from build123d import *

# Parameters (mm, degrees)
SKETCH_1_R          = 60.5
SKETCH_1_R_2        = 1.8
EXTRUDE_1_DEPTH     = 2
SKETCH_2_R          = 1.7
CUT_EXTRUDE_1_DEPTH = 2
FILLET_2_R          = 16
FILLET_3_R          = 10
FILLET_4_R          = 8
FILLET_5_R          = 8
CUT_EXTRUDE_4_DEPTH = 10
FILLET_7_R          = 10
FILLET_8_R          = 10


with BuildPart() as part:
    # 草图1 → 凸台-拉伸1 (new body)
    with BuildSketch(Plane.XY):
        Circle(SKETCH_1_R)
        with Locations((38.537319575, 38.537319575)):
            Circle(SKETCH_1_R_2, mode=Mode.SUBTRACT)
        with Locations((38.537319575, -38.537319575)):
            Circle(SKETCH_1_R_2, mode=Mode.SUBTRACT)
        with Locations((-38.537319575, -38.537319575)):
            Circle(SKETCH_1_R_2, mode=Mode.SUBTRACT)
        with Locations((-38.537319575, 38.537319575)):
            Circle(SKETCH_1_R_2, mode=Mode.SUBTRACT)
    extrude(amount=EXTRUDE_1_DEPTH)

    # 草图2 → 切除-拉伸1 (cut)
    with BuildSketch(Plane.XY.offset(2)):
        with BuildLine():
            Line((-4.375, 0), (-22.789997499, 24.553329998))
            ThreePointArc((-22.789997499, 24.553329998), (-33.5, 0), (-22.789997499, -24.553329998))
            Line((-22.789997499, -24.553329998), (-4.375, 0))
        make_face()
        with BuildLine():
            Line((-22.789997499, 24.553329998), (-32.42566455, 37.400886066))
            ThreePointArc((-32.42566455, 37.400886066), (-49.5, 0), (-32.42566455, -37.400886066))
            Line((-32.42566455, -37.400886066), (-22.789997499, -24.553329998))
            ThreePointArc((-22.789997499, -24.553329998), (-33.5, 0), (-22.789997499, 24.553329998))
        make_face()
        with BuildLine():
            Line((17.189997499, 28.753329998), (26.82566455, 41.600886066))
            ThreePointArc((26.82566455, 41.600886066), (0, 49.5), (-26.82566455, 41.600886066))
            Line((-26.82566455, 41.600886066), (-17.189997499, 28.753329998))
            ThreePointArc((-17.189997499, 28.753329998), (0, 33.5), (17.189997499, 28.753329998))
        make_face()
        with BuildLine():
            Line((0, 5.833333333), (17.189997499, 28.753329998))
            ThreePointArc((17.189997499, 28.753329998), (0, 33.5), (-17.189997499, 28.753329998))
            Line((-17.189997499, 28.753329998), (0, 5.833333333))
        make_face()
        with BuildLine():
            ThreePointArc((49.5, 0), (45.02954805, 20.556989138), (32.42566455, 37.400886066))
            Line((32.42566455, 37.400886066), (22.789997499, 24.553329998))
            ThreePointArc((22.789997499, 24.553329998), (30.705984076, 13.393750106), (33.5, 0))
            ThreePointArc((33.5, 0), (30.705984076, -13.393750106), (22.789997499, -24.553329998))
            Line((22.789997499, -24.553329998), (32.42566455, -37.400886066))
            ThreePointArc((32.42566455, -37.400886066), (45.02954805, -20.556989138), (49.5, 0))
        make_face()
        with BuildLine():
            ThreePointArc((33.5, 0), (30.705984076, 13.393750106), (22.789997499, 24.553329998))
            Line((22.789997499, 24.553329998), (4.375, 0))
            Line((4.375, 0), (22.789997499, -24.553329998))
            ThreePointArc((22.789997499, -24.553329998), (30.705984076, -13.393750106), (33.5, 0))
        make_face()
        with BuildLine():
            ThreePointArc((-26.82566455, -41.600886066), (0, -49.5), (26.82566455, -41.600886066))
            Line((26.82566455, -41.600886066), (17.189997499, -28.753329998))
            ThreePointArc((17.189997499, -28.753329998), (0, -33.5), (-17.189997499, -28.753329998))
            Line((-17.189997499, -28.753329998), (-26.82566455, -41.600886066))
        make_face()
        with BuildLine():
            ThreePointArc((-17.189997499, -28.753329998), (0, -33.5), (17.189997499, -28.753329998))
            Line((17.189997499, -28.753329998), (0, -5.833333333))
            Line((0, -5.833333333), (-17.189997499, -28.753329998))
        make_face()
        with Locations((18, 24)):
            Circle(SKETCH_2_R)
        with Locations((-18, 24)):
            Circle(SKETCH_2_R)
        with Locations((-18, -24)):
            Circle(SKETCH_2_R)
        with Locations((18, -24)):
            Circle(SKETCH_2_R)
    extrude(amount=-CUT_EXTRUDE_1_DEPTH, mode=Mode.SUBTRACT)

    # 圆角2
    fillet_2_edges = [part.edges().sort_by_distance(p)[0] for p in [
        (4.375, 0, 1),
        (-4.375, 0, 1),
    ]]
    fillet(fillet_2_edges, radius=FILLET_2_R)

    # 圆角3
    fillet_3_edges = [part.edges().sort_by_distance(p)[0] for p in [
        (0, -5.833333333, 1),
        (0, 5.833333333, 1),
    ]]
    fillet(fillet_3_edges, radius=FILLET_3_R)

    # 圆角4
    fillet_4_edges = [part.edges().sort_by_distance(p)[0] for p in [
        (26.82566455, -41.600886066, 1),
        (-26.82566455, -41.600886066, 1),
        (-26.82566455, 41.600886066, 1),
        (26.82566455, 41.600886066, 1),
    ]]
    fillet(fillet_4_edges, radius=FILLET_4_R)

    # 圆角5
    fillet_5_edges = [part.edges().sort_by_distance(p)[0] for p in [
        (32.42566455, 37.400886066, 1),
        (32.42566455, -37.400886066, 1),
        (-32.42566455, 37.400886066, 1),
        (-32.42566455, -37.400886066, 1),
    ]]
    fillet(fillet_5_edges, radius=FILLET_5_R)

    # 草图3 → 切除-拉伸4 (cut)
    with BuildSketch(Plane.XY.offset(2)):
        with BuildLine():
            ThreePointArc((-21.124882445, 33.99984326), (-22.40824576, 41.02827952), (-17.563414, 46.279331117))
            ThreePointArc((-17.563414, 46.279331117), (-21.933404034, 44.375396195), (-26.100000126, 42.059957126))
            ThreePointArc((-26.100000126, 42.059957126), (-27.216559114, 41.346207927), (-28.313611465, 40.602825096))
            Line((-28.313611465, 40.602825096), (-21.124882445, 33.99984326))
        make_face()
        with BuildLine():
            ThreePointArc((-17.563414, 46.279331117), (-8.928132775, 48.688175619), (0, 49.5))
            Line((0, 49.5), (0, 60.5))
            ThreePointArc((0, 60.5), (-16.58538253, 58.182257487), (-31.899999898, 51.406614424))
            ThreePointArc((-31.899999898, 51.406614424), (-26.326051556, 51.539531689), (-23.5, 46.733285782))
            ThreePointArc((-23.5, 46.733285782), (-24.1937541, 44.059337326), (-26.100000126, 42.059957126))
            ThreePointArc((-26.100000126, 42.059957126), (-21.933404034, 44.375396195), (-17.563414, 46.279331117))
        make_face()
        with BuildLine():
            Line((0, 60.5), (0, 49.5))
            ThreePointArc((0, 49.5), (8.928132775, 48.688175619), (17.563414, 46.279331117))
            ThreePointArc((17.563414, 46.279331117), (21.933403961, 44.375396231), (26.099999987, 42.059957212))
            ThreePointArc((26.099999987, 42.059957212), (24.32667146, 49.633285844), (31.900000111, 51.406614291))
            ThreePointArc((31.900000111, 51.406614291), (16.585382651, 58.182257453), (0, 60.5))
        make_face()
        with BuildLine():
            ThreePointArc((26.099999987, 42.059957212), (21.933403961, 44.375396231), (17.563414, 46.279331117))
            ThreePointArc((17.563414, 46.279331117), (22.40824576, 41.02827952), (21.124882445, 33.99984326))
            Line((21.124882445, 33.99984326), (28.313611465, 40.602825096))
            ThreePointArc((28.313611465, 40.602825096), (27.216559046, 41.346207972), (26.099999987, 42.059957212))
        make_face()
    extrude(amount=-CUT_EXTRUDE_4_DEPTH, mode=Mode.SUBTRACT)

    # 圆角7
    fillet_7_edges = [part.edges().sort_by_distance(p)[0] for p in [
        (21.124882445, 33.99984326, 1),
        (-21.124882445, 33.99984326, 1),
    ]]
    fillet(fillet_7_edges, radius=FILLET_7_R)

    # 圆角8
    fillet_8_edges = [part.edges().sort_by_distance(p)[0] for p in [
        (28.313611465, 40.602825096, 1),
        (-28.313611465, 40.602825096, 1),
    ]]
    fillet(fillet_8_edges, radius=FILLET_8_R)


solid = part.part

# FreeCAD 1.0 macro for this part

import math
import FreeCAD as App
import Part
import Sketcher
from FreeCAD import Vector
Q = App.Units.Quantity


def edges_at(feature, points):
    """Names of the edges that pass closest to the given points."""
    edges = feature.Shape.Edges
    near = lambda p: min(range(len(edges)), key=lambda i: edges[i].distToShape(Part.Vertex(*p))[0])
    return sorted({f"Edge{near(p) + 1}" for p in points})

doc = App.newDocument("Part")
body = doc.addObject("PartDesign::Body", "Body")

# Sketch on XY plane
sketch1 = doc.addObject("Sketcher::SketchObject", "Sketch")
body.addObject(sketch1)
sketch1.AttachmentSupport = (doc.XY_Plane, [""])
sketch1.MapMode = "FlatFace"
sketch1.addGeometry(Part.Circle(Vector(0, 0, 0), Vector(0, 0, 1), 60.5), False)
sketch1.addGeometry(Part.Circle(Vector(-38.5, -38.5, 0), Vector(0, 0, 1), 1.8), False)
sketch1.addGeometry(Part.Circle(Vector(38.5, -38.5, 0), Vector(0, 0, 1), 1.8), False)
sketch1.addGeometry(Part.Circle(Vector(-38.5, 38.5, 0), Vector(0, 0, 1), 1.8), False)
sketch1.addGeometry(Part.Circle(Vector(38.5, 38.5, 0), Vector(0, 0, 1), 1.8), False)
sketch1.addConstraint(Sketcher.Constraint("Coincident", 0, 3, -1, 1))
sketch1.addConstraint(Sketcher.Constraint("Equal", 1, 2))
sketch1.addConstraint(Sketcher.Constraint("Equal", 2, 3))
sketch1.addConstraint(Sketcher.Constraint("Equal", 3, 4))
sketch1.addConstraint(Sketcher.Constraint("Symmetric", 2, 3, 3, 3, -1, 1))
sketch1.addConstraint(Sketcher.Constraint("Symmetric", 1, 3, 4, 3, -1, 1))
sketch1.addConstraint(Sketcher.Constraint("Symmetric", 1, 3, 2, 3, -2))
sketch1.addConstraint(Sketcher.Constraint("Diameter", 0, Q("121 mm")))
sketch1.addConstraint(Sketcher.Constraint("Diameter", 1, Q("3.6 mm")))
sketch1.addConstraint(Sketcher.Constraint("DistanceX", 1, 3, -1, 1, Q("38.53732 mm")))
sketch1.addConstraint(Sketcher.Constraint("DistanceY", 1, 3, -1, 1, Q("38.53732 mm")))
pad1 = doc.addObject("PartDesign::Pad", "Pad")
body.addObject(pad1)
pad1.Profile = sketch1
pad1.Length = 2

# Sketch on XY plane
sketch2 = doc.addObject("Sketcher::SketchObject", "Sketch001")
body.addObject(sketch2)
sketch2.AttachmentSupport = (doc.XY_Plane, [""])
sketch2.MapMode = "FlatFace"
sketch2.AttachmentOffset = App.Placement(Vector(0, 0, 2), App.Rotation())
sketch2.addGeometry(Part.LineSegment(Vector(-4.4, 0, 0), Vector(-22.8, 24.6, 0)), False)
sketch2.addGeometry(Part.LineSegment(Vector(-22.8, 24.6, 0), Vector(-32.4, 37.4, 0)), False)
sketch2.addGeometry(Part.ArcOfCircle(Part.Circle(Vector(0, 0, 0), Vector(0, 0, 1), 49.5), math.radians(131), math.radians(229)), False)
sketch2.addGeometry(Part.LineSegment(Vector(-32.4, -37.4, 0), Vector(-22.8, -24.6, 0)), False)
sketch2.addGeometry(Part.LineSegment(Vector(-22.8, -24.6, 0), Vector(-4.4, 0, 0)), False)
sketch2.addGeometry(Part.LineSegment(Vector(17.2, 28.8, 0), Vector(26.8, 41.6, 0)), False)
sketch2.addGeometry(Part.ArcOfCircle(Part.Circle(Vector(0, 0, 0), Vector(0, 0, 1), 49.5), math.radians(57), math.radians(123)), False)
sketch2.addGeometry(Part.LineSegment(Vector(-26.8, 41.6, 0), Vector(-17.2, 28.8, 0)), False)
sketch2.addGeometry(Part.LineSegment(Vector(-17.2, 28.8, 0), Vector(0, 5.8, 0)), False)
sketch2.addGeometry(Part.LineSegment(Vector(0, 5.8, 0), Vector(17.2, 28.8, 0)), False)
sketch2.addGeometry(Part.ArcOfCircle(Part.Circle(Vector(0, 0, 0), Vector(0, 0, 1), 49.5), math.radians(0), math.radians(49)), False)
sketch2.addGeometry(Part.LineSegment(Vector(32.4, 37.4, 0), Vector(22.8, 24.6, 0)), False)
sketch2.addGeometry(Part.LineSegment(Vector(22.8, 24.6, 0), Vector(4.4, 0, 0)), False)
sketch2.addGeometry(Part.LineSegment(Vector(4.4, 0, 0), Vector(22.8, -24.6, 0)), False)
sketch2.addGeometry(Part.LineSegment(Vector(22.8, -24.6, 0), Vector(32.4, -37.4, 0)), False)
sketch2.addGeometry(Part.ArcOfCircle(Part.Circle(Vector(0, 0, 0), Vector(0, 0, 1), 49.5), math.radians(-49), math.radians(0)), False)
sketch2.addGeometry(Part.ArcOfCircle(Part.Circle(Vector(0, 0, 0), Vector(0, 0, 1), 49.5), math.radians(-123), math.radians(-57)), False)
sketch2.addGeometry(Part.LineSegment(Vector(26.8, -41.6, 0), Vector(17.2, -28.8, 0)), False)
sketch2.addGeometry(Part.LineSegment(Vector(17.2, -28.8, 0), Vector(0, -5.8, 0)), False)
sketch2.addGeometry(Part.LineSegment(Vector(0, -5.8, 0), Vector(-17.2, -28.8, 0)), False)
sketch2.addGeometry(Part.LineSegment(Vector(-17.2, -28.8, 0), Vector(-26.8, -41.6, 0)), False)
sketch2.addGeometry(Part.Circle(Vector(18, 24, 0), Vector(0, 0, 1), 1.7), False)
sketch2.addGeometry(Part.Circle(Vector(-18, 24, 0), Vector(0, 0, 1), 1.7), False)
sketch2.addGeometry(Part.Circle(Vector(-18, -24, 0), Vector(0, 0, 1), 1.7), False)
sketch2.addGeometry(Part.Circle(Vector(18, -24, 0), Vector(0, 0, 1), 1.7), False)
sketch2.addConstraint(Sketcher.Constraint("Coincident", 0, 2, 1, 1))
sketch2.addConstraint(Sketcher.Constraint("Coincident", 1, 2, 2, 1))
sketch2.addConstraint(Sketcher.Constraint("Coincident", 2, 2, 3, 1))
sketch2.addConstraint(Sketcher.Constraint("Coincident", 3, 2, 4, 1))
sketch2.addConstraint(Sketcher.Constraint("Coincident", 4, 2, 0, 1))
sketch2.addConstraint(Sketcher.Constraint("Coincident", 5, 2, 6, 1))
sketch2.addConstraint(Sketcher.Constraint("Coincident", 6, 2, 7, 1))
sketch2.addConstraint(Sketcher.Constraint("Coincident", 7, 2, 8, 1))
sketch2.addConstraint(Sketcher.Constraint("Coincident", 8, 2, 9, 1))
sketch2.addConstraint(Sketcher.Constraint("Coincident", 9, 2, 5, 1))
sketch2.addConstraint(Sketcher.Constraint("Coincident", 10, 2, 11, 1))
sketch2.addConstraint(Sketcher.Constraint("Coincident", 11, 2, 12, 1))
sketch2.addConstraint(Sketcher.Constraint("Coincident", 12, 2, 13, 1))
sketch2.addConstraint(Sketcher.Constraint("Coincident", 13, 2, 14, 1))
sketch2.addConstraint(Sketcher.Constraint("Coincident", 14, 2, 15, 1))
sketch2.addConstraint(Sketcher.Constraint("Tangent", 15, 2, 10, 1))
sketch2.addConstraint(Sketcher.Constraint("Coincident", 16, 2, 17, 1))
sketch2.addConstraint(Sketcher.Constraint("Coincident", 17, 2, 18, 1))
sketch2.addConstraint(Sketcher.Constraint("Coincident", 18, 2, 19, 1))
sketch2.addConstraint(Sketcher.Constraint("Coincident", 19, 2, 20, 1))
sketch2.addConstraint(Sketcher.Constraint("Coincident", 20, 2, 16, 1))
sketch2.addConstraint(Sketcher.Constraint("Coincident", 2, 3, -1, 1))
sketch2.addConstraint(Sketcher.Constraint("Coincident", 6, 3, -1, 1))
sketch2.addConstraint(Sketcher.Constraint("Coincident", 10, 3, -1, 1))
sketch2.addConstraint(Sketcher.Constraint("Coincident", 16, 3, -1, 1))
sketch2.addConstraint(Sketcher.Constraint("Equal", 2, 6))
sketch2.addConstraint(Sketcher.Constraint("Equal", 6, 10))
sketch2.addConstraint(Sketcher.Constraint("Equal", 10, 15))
sketch2.addConstraint(Sketcher.Constraint("Equal", 15, 16))
sketch2.addConstraint(Sketcher.Constraint("Equal", 21, 22))
sketch2.addConstraint(Sketcher.Constraint("Equal", 22, 23))
sketch2.addConstraint(Sketcher.Constraint("Equal", 23, 24))
sketch2.addConstraint(Sketcher.Constraint("Symmetric", 21, 3, 23, 3, -1, 1))
sketch2.addConstraint(Sketcher.Constraint("Symmetric", 22, 3, 24, 3, -1, 1))
sketch2.addConstraint(Sketcher.Constraint("Symmetric", 3, 2, 11, 2, -1, 1))
sketch2.addConstraint(Sketcher.Constraint("Symmetric", 4, 2, 12, 2, -1, 1))
sketch2.addConstraint(Sketcher.Constraint("Symmetric", 0, 2, 13, 2, -1, 1))
sketch2.addConstraint(Sketcher.Constraint("Symmetric", 7, 2, 17, 2, -1, 1))
sketch2.addConstraint(Sketcher.Constraint("Symmetric", 8, 2, 18, 2, -1, 1))
sketch2.addConstraint(Sketcher.Constraint("Symmetric", 9, 2, 19, 2, -1, 1))
sketch2.addConstraint(Sketcher.Constraint("Symmetric", 21, 3, 22, 3, -2))
sketch2.addConstraint(Sketcher.Constraint("Symmetric", 7, 2, 9, 2, -2))
sketch2.addConstraint(Sketcher.Constraint("Symmetric", 0, 2, 11, 2, -2))
sketch2.addConstraint(Sketcher.Constraint("PointOnObject", 4, 2, -1))
sketch2.addConstraint(Sketcher.Constraint("PointOnObject", 8, 2, -2))
sketch2.addConstraint(Sketcher.Constraint("PointOnObject", 15, 2, -1))
sketch2.addConstraint(Sketcher.Constraint("Parallel", 0, 1))
sketch2.addConstraint(Sketcher.Constraint("Parallel", 3, 4))
sketch2.addConstraint(Sketcher.Constraint("Parallel", 4, 5))
sketch2.addConstraint(Sketcher.Constraint("Parallel", 1, 7))
sketch2.addConstraint(Sketcher.Constraint("Parallel", 7, 8))
sketch2.addConstraint(Sketcher.Constraint("Parallel", 9, 11))
sketch2.addConstraint(Sketcher.Constraint("Parallel", 13, 14))
sketch2.addConstraint(Sketcher.Constraint("Parallel", 14, 17))
sketch2.addConstraint(Sketcher.Constraint("Parallel", 19, 20))
sketch2.addConstraint(Sketcher.Constraint("Equal", 3, 5))
sketch2.addConstraint(Sketcher.Constraint("Diameter", 21, Q("3.4 mm")))
sketch2.addConstraint(Sketcher.Constraint("Radius", 2, Q("49.5 mm")))
sketch2.addConstraint(Sketcher.Constraint("DistanceX", -1, 1, 21, 3, Q("18 mm")))
sketch2.addConstraint(Sketcher.Constraint("DistanceY", -1, 1, 21, 3, Q("24 mm")))
sketch2.addConstraint(Sketcher.Constraint("DistanceX", 1, 2, 6, 2, Q("5.6 mm")))
sketch2.addConstraint(Sketcher.Constraint("DistanceY", 0, 2, 7, 2, Q("4.2 mm")))
sketch2.addConstraint(Sketcher.Constraint("DistanceX", 4, 2, -1, 1, Q("4.375 mm")))
sketch2.addConstraint(Sketcher.Constraint("DistanceY", -1, 1, 0, 2, Q("24.55333 mm")))
pocket1 = doc.addObject("PartDesign::Pocket", "Pocket")
body.addObject(pocket1)
pocket1.Profile = sketch2
pocket1.Length = 2
doc.recompute()

fillet = doc.addObject("PartDesign::Fillet", "Fillet")
body.addObject(fillet)
fillet.Base = (pocket1, edges_at(pocket1, [(4.375, 0, 1), (-4.375, 0, 1)]))
fillet.Radius = 16
doc.recompute()

fillet2 = doc.addObject("PartDesign::Fillet", "Fillet001")
body.addObject(fillet2)
fillet2.Base = (fillet, edges_at(fillet, [(0, -5.833, 1), (0, 5.833, 1)]))
fillet2.Radius = 10
doc.recompute()

fillet3 = doc.addObject("PartDesign::Fillet", "Fillet002")
body.addObject(fillet3)
fillet3.Base = (fillet2, edges_at(fillet2, [
    (26.826, -41.601, 1),
    (-26.826, -41.601, 1),
    (-26.826, 41.601, 1),
    (26.826, 41.601, 1),
]))
fillet3.Radius = 8
doc.recompute()

fillet4 = doc.addObject("PartDesign::Fillet", "Fillet003")
body.addObject(fillet4)
fillet4.Base = (fillet3, edges_at(fillet3, [
    (32.426, 37.401, 1),
    (32.426, -37.401, 1),
    (-32.426, 37.401, 1),
    (-32.426, -37.401, 1),
]))
fillet4.Radius = 8

# Sketch on XY plane
sketch3 = doc.addObject("Sketcher::SketchObject", "Sketch002")
body.addObject(sketch3)
sketch3.AttachmentSupport = (doc.XY_Plane, [""])
sketch3.MapMode = "FlatFace"
sketch3.AttachmentOffset = App.Placement(Vector(0, 0, 2), App.Rotation())
sketch3.addGeometry(Part.ArcOfCircle(Part.Circle(Vector(-14.7, 38.8, 0), Vector(0, 0, 1), 8), math.radians(111), math.radians(217)), False)
sketch3.addGeometry(Part.ArcOfCircle(Part.Circle(Vector(0, 0, 0), Vector(0, 0, 1), 49.5), math.radians(90), math.radians(111)), False)
sketch3.addGeometry(Part.ArcOfCircle(Part.Circle(Vector(0, 0, 0), Vector(0, 0, 1), 49.5), math.radians(69), math.radians(90)), False)
sketch3.addGeometry(Part.ArcOfCircle(Part.Circle(Vector(14.7, 38.8, 0), Vector(0, 0, 1), 8), math.radians(-37), math.radians(69)), False)
sketch3.addGeometry(Part.LineSegment(Vector(21.1, 34, 0), Vector(28.3, 40.6, 0)), False)
sketch3.addGeometry(Part.ArcOfCircle(Part.Circle(Vector(0, 0, 0), Vector(0, 0, 1), 49.5), math.radians(55.11), math.radians(58.18)), False)
sketch3.addGeometry(Part.ArcOfCircle(Part.Circle(Vector(29, 46.7, 0), Vector(0, 0, 1), 5.5), math.radians(58), math.radians(238)), False)
sketch3.addGeometry(Part.ArcOfCircle(Part.Circle(Vector(0, 0, 0), Vector(0, 0, 1), 60.5), math.radians(58), math.radians(90)), False)
sketch3.addGeometry(Part.ArcOfCircle(Part.Circle(Vector(0, 0, 0), Vector(0, 0, 1), 60.5), math.radians(90), math.radians(122)), False)
sketch3.addGeometry(Part.ArcOfCircle(Part.Circle(Vector(-29, 46.7, 0), Vector(0, 0, 1), 5.5), math.radians(0), math.radians(122)), False)
sketch3.addGeometry(Part.ArcOfCircle(Part.Circle(Vector(-29, 46.7, 0), Vector(0, 0, 1), 5.5), math.radians(-58), math.radians(0)), False)
sketch3.addGeometry(Part.ArcOfCircle(Part.Circle(Vector(0, 0, 0), Vector(0, 0, 1), 49.5), math.radians(121.82), math.radians(124.89)), False)
sketch3.addGeometry(Part.LineSegment(Vector(-28.3, 40.6, 0), Vector(-21.1, 34, 0)), False)
sketch3.addConstraint(Sketcher.Constraint("Tangent", 0, 1, 1, 2))
sketch3.addConstraint(Sketcher.Constraint("Tangent", 1, 1, 2, 2))
sketch3.addConstraint(Sketcher.Constraint("Tangent", 2, 1, 3, 2))
sketch3.addConstraint(Sketcher.Constraint("Coincident", 3, 1, 4, 1))
sketch3.addConstraint(Sketcher.Constraint("Coincident", 4, 2, 5, 1))
sketch3.addConstraint(Sketcher.Constraint("Tangent", 5, 2, 6, 2))
sketch3.addConstraint(Sketcher.Constraint("Tangent", 6, 1, 7, 1))
sketch3.addConstraint(Sketcher.Constraint("Tangent", 7, 2, 8, 1))
sketch3.addConstraint(Sketcher.Constraint("Tangent", 8, 2, 9, 2))
sketch3.addConstraint(Sketcher.Constraint("Tangent", 9, 1, 10, 2))
sketch3.addConstraint(Sketcher.Constraint("Tangent", 10, 1, 11, 1))
sketch3.addConstraint(Sketcher.Constraint("Coincident", 11, 2, 12, 1))
sketch3.addConstraint(Sketcher.Constraint("Coincident", 12, 2, 0, 2))
sketch3.addConstraint(Sketcher.Constraint("Coincident", 1, 3, -1, 1))
sketch3.addConstraint(Sketcher.Constraint("Coincident", 5, 3, -1, 1))
sketch3.addConstraint(Sketcher.Constraint("Coincident", 7, 3, -1, 1))
sketch3.addConstraint(Sketcher.Constraint("Coincident", 11, 3, -1, 1))
sketch3.addConstraint(Sketcher.Constraint("Equal", 1, 2))
sketch3.addConstraint(Sketcher.Constraint("Equal", 0, 3))
sketch3.addConstraint(Sketcher.Constraint("Equal", 2, 5))
sketch3.addConstraint(Sketcher.Constraint("Equal", 7, 8))
sketch3.addConstraint(Sketcher.Constraint("Equal", 6, 9))
sketch3.addConstraint(Sketcher.Constraint("Equal", 9, 10))
sketch3.addConstraint(Sketcher.Constraint("Symmetric", 3, 1, 12, 2, -2))
sketch3.addConstraint(Sketcher.Constraint("PointOnObject", 1, 1, -2))
sketch3.addConstraint(Sketcher.Constraint("PointOnObject", 7, 2, -2))
sketch3.addConstraint(Sketcher.Constraint("Horizontal", 6, 3, 9, 3))
sketch3.addConstraint(Sketcher.Constraint("Horizontal", 10, 3, 9, 1))
sketch3.addConstraint(Sketcher.Constraint("Horizontal", 4, 2, 11, 2))
sketch3.addConstraint(Sketcher.Constraint("Radius", 0, Q("8 mm")))
sketch3.addConstraint(Sketcher.Constraint("Radius", 1, Q("49.5 mm")))
sketch3.addConstraint(Sketcher.Constraint("Radius", 6, Q("5.5 mm")))
sketch3.addConstraint(Sketcher.Constraint("DistanceX", -1, 1, 6, 3, Q("29 mm")))
sketch3.addConstraint(Sketcher.Constraint("DistanceX", 3, 3, 3, 1, Q("6.4 mm")))
sketch3.addConstraint(Sketcher.Constraint("DistanceY", -1, 1, 0, 1, Q("46.279331 mm")))
sketch3.addConstraint(Sketcher.Constraint("DistanceX", -1, 1, 4, 2, Q("28.313611 mm")))
pocket2 = doc.addObject("PartDesign::Pocket", "Pocket001")
body.addObject(pocket2)
pocket2.Profile = sketch3
pocket2.Length = 10
doc.recompute()

fillet5 = doc.addObject("PartDesign::Fillet", "Fillet004")
body.addObject(fillet5)
fillet5.Base = (pocket2, edges_at(pocket2, [(21.125, 34, 1), (-21.125, 34, 1)]))
fillet5.Radius = 10
doc.recompute()

fillet6 = doc.addObject("PartDesign::Fillet", "Fillet005")
body.addObject(fillet6)
fillet6.Base = (fillet5, edges_at(fillet5, [(28.314, 40.603, 1), (-28.314, 40.603, 1)]))
fillet6.Radius = 10

doc.recompute()
